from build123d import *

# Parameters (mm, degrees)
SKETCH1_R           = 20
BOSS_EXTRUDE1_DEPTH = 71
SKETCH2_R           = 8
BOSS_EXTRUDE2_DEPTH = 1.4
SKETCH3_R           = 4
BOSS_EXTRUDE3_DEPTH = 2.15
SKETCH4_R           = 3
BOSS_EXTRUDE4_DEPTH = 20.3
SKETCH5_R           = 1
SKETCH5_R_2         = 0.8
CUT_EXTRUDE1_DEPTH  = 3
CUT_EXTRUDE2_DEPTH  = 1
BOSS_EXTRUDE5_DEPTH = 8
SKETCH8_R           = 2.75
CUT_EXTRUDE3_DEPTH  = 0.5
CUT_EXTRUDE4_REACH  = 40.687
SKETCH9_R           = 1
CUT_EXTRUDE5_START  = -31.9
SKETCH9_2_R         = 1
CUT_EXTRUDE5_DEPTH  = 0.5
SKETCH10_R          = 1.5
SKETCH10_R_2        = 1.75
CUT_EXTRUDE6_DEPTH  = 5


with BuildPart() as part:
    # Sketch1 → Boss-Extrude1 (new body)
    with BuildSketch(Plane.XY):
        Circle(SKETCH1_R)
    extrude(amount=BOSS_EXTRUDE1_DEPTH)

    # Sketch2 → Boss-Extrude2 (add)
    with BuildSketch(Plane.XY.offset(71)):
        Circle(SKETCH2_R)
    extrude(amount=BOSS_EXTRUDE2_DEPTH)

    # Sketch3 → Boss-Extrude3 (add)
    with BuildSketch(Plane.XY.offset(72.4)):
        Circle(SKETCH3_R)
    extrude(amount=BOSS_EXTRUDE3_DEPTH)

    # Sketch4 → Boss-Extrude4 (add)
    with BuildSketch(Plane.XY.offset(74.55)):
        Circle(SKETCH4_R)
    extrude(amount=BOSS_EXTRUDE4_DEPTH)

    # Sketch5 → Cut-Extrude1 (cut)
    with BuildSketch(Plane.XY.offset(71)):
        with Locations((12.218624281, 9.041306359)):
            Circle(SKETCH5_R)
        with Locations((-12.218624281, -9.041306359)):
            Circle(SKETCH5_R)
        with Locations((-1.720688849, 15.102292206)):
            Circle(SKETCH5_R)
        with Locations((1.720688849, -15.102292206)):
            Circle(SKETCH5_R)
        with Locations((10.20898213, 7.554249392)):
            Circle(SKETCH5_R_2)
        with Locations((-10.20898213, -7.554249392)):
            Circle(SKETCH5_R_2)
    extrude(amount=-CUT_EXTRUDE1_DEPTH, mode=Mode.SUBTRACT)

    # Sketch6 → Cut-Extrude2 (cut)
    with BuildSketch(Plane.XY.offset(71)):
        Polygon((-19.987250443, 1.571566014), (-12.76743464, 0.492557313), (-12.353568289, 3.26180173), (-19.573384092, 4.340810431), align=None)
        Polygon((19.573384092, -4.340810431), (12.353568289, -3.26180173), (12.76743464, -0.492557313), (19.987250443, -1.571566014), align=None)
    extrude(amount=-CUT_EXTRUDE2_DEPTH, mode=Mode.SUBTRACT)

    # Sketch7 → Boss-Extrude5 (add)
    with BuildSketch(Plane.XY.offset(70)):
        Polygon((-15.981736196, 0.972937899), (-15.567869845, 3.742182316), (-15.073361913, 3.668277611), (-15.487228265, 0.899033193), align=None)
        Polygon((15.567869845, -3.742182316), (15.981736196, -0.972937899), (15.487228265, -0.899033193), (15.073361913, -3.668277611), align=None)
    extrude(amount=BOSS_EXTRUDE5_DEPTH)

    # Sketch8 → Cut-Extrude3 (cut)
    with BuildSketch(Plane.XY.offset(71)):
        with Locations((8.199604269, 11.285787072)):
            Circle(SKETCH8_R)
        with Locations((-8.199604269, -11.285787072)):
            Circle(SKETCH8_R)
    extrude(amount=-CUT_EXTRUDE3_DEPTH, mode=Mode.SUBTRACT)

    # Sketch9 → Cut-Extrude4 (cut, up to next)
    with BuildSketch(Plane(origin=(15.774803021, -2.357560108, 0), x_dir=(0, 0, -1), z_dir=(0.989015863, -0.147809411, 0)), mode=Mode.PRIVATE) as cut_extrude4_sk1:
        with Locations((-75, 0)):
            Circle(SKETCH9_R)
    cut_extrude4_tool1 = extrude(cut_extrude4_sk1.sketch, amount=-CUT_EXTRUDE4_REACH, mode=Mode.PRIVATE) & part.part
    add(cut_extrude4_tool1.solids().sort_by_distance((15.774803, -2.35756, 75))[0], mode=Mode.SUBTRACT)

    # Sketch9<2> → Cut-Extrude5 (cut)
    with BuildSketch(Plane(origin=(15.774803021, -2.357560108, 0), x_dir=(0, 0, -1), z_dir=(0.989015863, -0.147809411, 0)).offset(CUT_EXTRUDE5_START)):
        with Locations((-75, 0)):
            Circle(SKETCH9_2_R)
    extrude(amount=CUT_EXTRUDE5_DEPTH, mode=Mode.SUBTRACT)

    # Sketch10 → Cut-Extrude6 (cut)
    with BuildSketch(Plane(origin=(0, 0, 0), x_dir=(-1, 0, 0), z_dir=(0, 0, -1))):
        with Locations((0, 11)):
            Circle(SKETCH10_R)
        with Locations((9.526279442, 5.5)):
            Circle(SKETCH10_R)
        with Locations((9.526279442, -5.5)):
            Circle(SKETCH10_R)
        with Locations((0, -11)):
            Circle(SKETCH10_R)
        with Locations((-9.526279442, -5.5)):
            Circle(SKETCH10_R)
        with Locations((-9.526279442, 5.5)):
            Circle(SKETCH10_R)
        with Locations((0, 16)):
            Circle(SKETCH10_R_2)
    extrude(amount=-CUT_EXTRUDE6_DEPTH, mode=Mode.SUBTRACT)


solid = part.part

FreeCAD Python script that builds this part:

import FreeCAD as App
import Part
import Sketcher

V = App.Vector
Q = App.Units.Quantity

doc = App.newDocument("Part")
body = doc.addObject("PartDesign::Body", "Body")

# Sketch on XY plane
sketch1 = doc.addObject("Sketcher::SketchObject", "Sketch")
body.addObject(sketch1)
sketch1.AttachmentSupport = (doc.XY_Plane, [""])
sketch1.MapMode = "FlatFace"
sketch1.addGeometry(Part.Circle(V(0, 0, 0), V(0, 0, 1), 20), False)
sketch1.addConstraint(Sketcher.Constraint("Coincident", 0, 3, -1, 1))
sketch1.addConstraint(Sketcher.Constraint("Diameter", 0, Q("40 mm")))
pad1 = doc.addObject("PartDesign::Pad", "Pad")
body.addObject(pad1)
pad1.Profile = sketch1
pad1.Length = 71

# Sketch on XY plane
sketch2 = doc.addObject("Sketcher::SketchObject", "Sketch001")
body.addObject(sketch2)
sketch2.AttachmentSupport = (doc.XY_Plane, [""])
sketch2.MapMode = "FlatFace"
sketch2.AttachmentOffset = App.Placement(V(0, 0, 71), App.Rotation())
sketch2.addGeometry(Part.Circle(V(0, 0, 0), V(0, 0, 1), 8), False)
sketch2.addConstraint(Sketcher.Constraint("Coincident", 0, 3, -1, 1))
sketch2.addConstraint(Sketcher.Constraint("Diameter", 0, Q("16 mm")))
pad2 = doc.addObject("PartDesign::Pad", "Pad001")
body.addObject(pad2)
pad2.Profile = sketch2
pad2.Length = 1.4

# Sketch on XY plane
sketch3 = doc.addObject("Sketcher::SketchObject", "Sketch002")
body.addObject(sketch3)
sketch3.AttachmentSupport = (doc.XY_Plane, [""])
sketch3.MapMode = "FlatFace"
sketch3.AttachmentOffset = App.Placement(V(0, 0, 72.4), App.Rotation())
sketch3.addGeometry(Part.Circle(V(0, 0, 0), V(0, 0, 1), 4), False)
sketch3.addConstraint(Sketcher.Constraint("Coincident", 0, 3, -1, 1))
sketch3.addConstraint(Sketcher.Constraint("Diameter", 0, Q("8 mm")))
pad3 = doc.addObject("PartDesign::Pad", "Pad002")
body.addObject(pad3)
pad3.Profile = sketch3
pad3.Length = 2.15

# Sketch on XY plane
sketch4 = doc.addObject("Sketcher::SketchObject", "Sketch003")
body.addObject(sketch4)
sketch4.AttachmentSupport = (doc.XY_Plane, [""])
sketch4.MapMode = "FlatFace"
sketch4.AttachmentOffset = App.Placement(V(0, 0, 74.55), App.Rotation())
sketch4.addGeometry(Part.Circle(V(0, 0, 0), V(0, 0, 1), 3), False)
sketch4.addConstraint(Sketcher.Constraint("Coincident", 0, 3, -1, 1))
sketch4.addConstraint(Sketcher.Constraint("Diameter", 0, Q("6 mm")))
pad4 = doc.addObject("PartDesign::Pad", "Pad003")
body.addObject(pad4)
pad4.Profile = sketch4
pad4.Length = 20.3

# Sketch on XY plane
sketch5 = doc.addObject("Sketcher::SketchObject", "Sketch004")
body.addObject(sketch5)
sketch5.AttachmentSupport = (doc.XY_Plane, [""])
sketch5.MapMode = "FlatFace"
sketch5.AttachmentOffset = App.Placement(V(0, 0, 71), App.Rotation())
sketch5.addGeometry(Part.Circle(V(12.218624, 9.041306, 0), V(0, 0, 1), 1), False)
sketch5.addGeometry(Part.Circle(V(-12.218624, -9.041306, 0), V(0, 0, 1), 1), False)
sketch5.addGeometry(Part.Circle(V(-1.720689, 15.102292, 0), V(0, 0, 1), 1), False)
sketch5.addGeometry(Part.Circle(V(1.720689, -15.102292, 0), V(0, 0, 1), 1), False)
sketch5.addGeometry(Part.Circle(V(10.208982, 7.554249, 0), V(0, 0, 1), 0.8), False)
sketch5.addGeometry(Part.Circle(V(-10.208982, -7.554249, 0), V(0, 0, 1), 0.8), False)
sketch5.addConstraint(Sketcher.Constraint("Equal", 0, 1))
sketch5.addConstraint(Sketcher.Constraint("Equal", 1, 2))
sketch5.addConstraint(Sketcher.Constraint("Equal", 2, 3))
sketch5.addConstraint(Sketcher.Constraint("Equal", 4, 5))
sketch5.addConstraint(Sketcher.Constraint("Symmetric", 0, 3, 1, 3, -1, 1))
sketch5.addConstraint(Sketcher.Constraint("Symmetric", 2, 3, 3, 3, -1, 1))
sketch5.addConstraint(Sketcher.Constraint("Symmetric", 4, 3, 5, 3, -1, 1))
sketch5.addConstraint(Sketcher.Constraint("Diameter", 0, Q("2 mm")))
sketch5.addConstraint(Sketcher.Constraint("Diameter", 4, Q("1.6 mm")))
sketch5.addConstraint(Sketcher.Constraint("DistanceY", 1, 3, 2, 3, Q("24.143599 mm")))
sketch5.addConstraint(Sketcher.Constraint("DistanceY", 5, 3, 4, 3, Q("15.108499 mm")))
sketch5.addConstraint(Sketcher.Constraint("DistanceX", 2, 3, -1, 1, Q("1.720689 mm")))
sketch5.addConstraint(Sketcher.Constraint("DistanceX", 1, 3, 0, 3, Q("24.437249 mm")))
sketch5.addConstraint(Sketcher.Constraint("DistanceX", 2, 3, 4, 3, Q("11.929671 mm")))
sketch5.addConstraint(Sketcher.Constraint("DistanceY", 3, 3, 4, 3, Q("22.656542 mm")))
pocket1 = doc.addObject("PartDesign::Pocket", "Pocket")
body.addObject(pocket1)
pocket1.Profile = sketch5
pocket1.Length = 3

# Sketch on XY plane
sketch6 = doc.addObject("Sketcher::SketchObject", "Sketch005")
body.addObject(sketch6)
sketch6.AttachmentSupport = (doc.XY_Plane, [""])
sketch6.MapMode = "FlatFace"
sketch6.AttachmentOffset = App.Placement(V(0, 0, 71), App.Rotation())
sketch6.addGeometry(Part.LineSegment(V(-19.98725, 1.571566, 0), V(-12.767435, 0.492557, 0)), False)
sketch6.addGeometry(Part.LineSegment(V(-12.767435, 0.492557, 0), V(-12.353568, 3.261802, 0)), False)
sketch6.addGeometry(Part.LineSegment(V(-12.353568, 3.261802, 0), V(-19.573384, 4.34081, 0)), False)
sketch6.addGeometry(Part.LineSegment(V(-19.573384, 4.34081, 0), V(-19.98725, 1.571566, 0)), False)
sketch6.addGeometry(Part.LineSegment(V(12.353568, -3.261802, 0), V(19.573384, -4.34081, 0)), False)
sketch6.addGeometry(Part.LineSegment(V(19.573384, -4.34081, 0), V(19.98725, -1.571566, 0)), False)
sketch6.addGeometry(Part.LineSegment(V(19.98725, -1.571566, 0), V(12.767435, -0.492557, 0)), False)
sketch6.addGeometry(Part.LineSegment(V(12.767435, -0.492557, 0), V(12.353568, -3.261802, 0)), False)
sketch6.addConstraint(Sketcher.Constraint("Coincident", 0, 2, 1, 1))
sketch6.addConstraint(Sketcher.Constraint("Coincident", 1, 2, 2, 1))
sketch6.addConstraint(Sketcher.Constraint("Coincident", 2, 2, 3, 1))
sketch6.addConstraint(Sketcher.Constraint("Coincident", 3, 2, 0, 1))
sketch6.addConstraint(Sketcher.Constraint("Coincident", 4, 2, 5, 1))
sketch6.addConstraint(Sketcher.Constraint("Coincident", 5, 2, 6, 1))
sketch6.addConstraint(Sketcher.Constraint("Coincident", 6, 2, 7, 1))
sketch6.addConstraint(Sketcher.Constraint("Coincident", 7, 2, 4, 1))
sketch6.addConstraint(Sketcher.Constraint("Symmetric", 2, 2, 4, 2, -1, 1))
sketch6.addConstraint(Sketcher.Constraint("Symmetric", 3, 2, 5, 2, -1, 1))
sketch6.addConstraint(Sketcher.Constraint("Symmetric", 0, 2, 6, 2, -1, 1))
sketch6.addConstraint(Sketcher.Constraint("Symmetric", 1, 2, 7, 2, -1, 1))
sketch6.addConstraint(Sketcher.Constraint("Perpendicular", 0, 1))
sketch6.addConstraint(Sketcher.Constraint("Perpendicular", 1, 2))
sketch6.addConstraint(Sketcher.Constraint("Perpendicular", 2, 3))
sketch6.addConstraint(Sketcher.Constraint("Angle", 0, Q("-8.5 deg")))
sketch6.addConstraint(Sketcher.Constraint("Distance", 0, Q("7.3 mm")))
sketch6.addConstraint(Sketcher.Constraint("Distance", 1, Q("2.8 mm")))
sketch6.addConstraint(Sketcher.Constraint("DistanceY", -1, 1, 1, 2, Q("3.261802 mm")))
sketch6.addConstraint(Sketcher.Constraint("DistanceX", 3, 2, 5, 2, Q("39.974501 mm")))
pocket2 = doc.addObject("PartDesign::Pocket", "Pocket001")
body.addObject(pocket2)
pocket2.Profile = sketch6
pocket2.Length = 1

# Sketch on XY plane
sketch7 = doc.addObject("Sketcher::SketchObject", "Sketch006")
body.addObject(sketch7)
sketch7.AttachmentSupport = (doc.XY_Plane, [""])
sketch7.MapMode = "FlatFace"
sketch7.AttachmentOffset = App.Placement(V(0, 0, 70), App.Rotation())
sketch7.addGeometry(Part.LineSegment(V(-15.56787, 3.742182, 0), V(-15.981736, 0.972938, 0)), False)
sketch7.addGeometry(Part.LineSegment(V(-15.981736, 0.972938, 0), V(-15.487228, 0.899033, 0)), False)
sketch7.addGeometry(Part.LineSegment(V(-15.487228, 0.899033, 0), V(-15.073362, 3.668278, 0)), False)
sketch7.addGeometry(Part.LineSegment(V(-15.073362, 3.668278, 0), V(-15.56787, 3.742182, 0)), False)
sketch7.addGeometry(Part.LineSegment(V(15.56787, -3.742182, 0), V(15.981736, -0.972938, 0)), False)
sketch7.addGeometry(Part.LineSegment(V(15.981736, -0.972938, 0), V(15.487228, -0.899033, 0)), False)
sketch7.addGeometry(Part.LineSegment(V(15.487228, -0.899033, 0), V(15.073362, -3.668278, 0)), False)
sketch7.addGeometry(Part.LineSegment(V(15.073362, -3.668278, 0), V(15.56787, -3.742182, 0)), False)
sketch7.addConstraint(Sketcher.Constraint("Coincident", 0, 2, 1, 1))
sketch7.addConstraint(Sketcher.Constraint("Coincident", 1, 2, 2, 1))
sketch7.addConstraint(Sketcher.Constraint("Coincident", 2, 2, 3, 1))
sketch7.addConstraint(Sketcher.Constraint("Coincident", 3, 2, 0, 1))
sketch7.addConstraint(Sketcher.Constraint("Coincident", 4, 2, 5, 1))
sketch7.addConstraint(Sketcher.Constraint("Coincident", 5, 2, 6, 1))
sketch7.addConstraint(Sketcher.Constraint("Coincident", 6, 2, 7, 1))
sketch7.addConstraint(Sketcher.Constraint("Coincident", 7, 2, 4, 1))
sketch7.addConstraint(Sketcher.Constraint("Symmetric", 0, 2, 4, 2, -1, 1))
sketch7.addConstraint(Sketcher.Constraint("Symmetric", 1, 2, 5, 2, -1, 1))
sketch7.addConstraint(Sketcher.Constraint("Symmetric", 2, 2, 6, 2, -1, 1))
sketch7.addConstraint(Sketcher.Constraint("Symmetric", 3, 2, 7, 2, -1, 1))
sketch7.addConstraint(Sketcher.Constraint("Perpendicular", 0, 1))
sketch7.addConstraint(Sketcher.Constraint("Perpendicular", 1, 2))
sketch7.addConstraint(Sketcher.Constraint("Perpendicular", 2, 3))
sketch7.addConstraint(Sketcher.Constraint("Angle", 0, Q("-98.5 deg")))
sketch7.addConstraint(Sketcher.Constraint("Distance", 0, Q("2.8 mm")))
sketch7.addConstraint(Sketcher.Constraint("Distance", 1, Q("0.5 mm")))
sketch7.addConstraint(Sketcher.Constraint("DistanceX", 2, 2, 4, 2, Q("31.055098 mm")))
sketch7.addConstraint(Sketcher.Constraint("DistanceY", 4, 2, 1, 2, Q("1.871971 mm")))
pad5 = doc.addObject("PartDesign::Pad", "Pad004")
body.addObject(pad5)
pad5.Profile = sketch7
pad5.Length = 8

# Sketch on XY plane
sketch8 = doc.addObject("Sketcher::SketchObject", "Sketch007")
body.addObject(sketch8)
sketch8.AttachmentSupport = (doc.XY_Plane, [""])
sketch8.MapMode = "FlatFace"
sketch8.AttachmentOffset = App.Placement(V(0, 0, 71), App.Rotation())
sketch8.addGeometry(Part.Circle(V(8.199604, 11.285787, 0), V(0, 0, 1), 2.75), False)
sketch8.addGeometry(Part.Circle(V(-8.199604, -11.285787, 0), V(0, 0, 1), 2.75), False)
sketch8.addConstraint(Sketcher.Constraint("Equal", 0, 1))
sketch8.addConstraint(Sketcher.Constraint("Symmetric", 0, 3, 1, 3, -1, 1))
sketch8.addConstraint(Sketcher.Constraint("Diameter", 0, Q("5.5 mm")))
sketch8.addConstraint(Sketcher.Constraint("DistanceX", 1, 3, 0, 3, Q("16.399209 mm")))
sketch8.addConstraint(Sketcher.Constraint("DistanceY", -1, 1, 0, 3, Q("11.285787 mm")))
pocket3 = doc.addObject("PartDesign::Pocket", "Pocket002")
body.addObject(pocket3)
pocket3.Profile = sketch8
pocket3.Length = 0.5

# Sketch on an angled plane
sketch9 = doc.addObject("Sketcher::SketchObject", "Sketch008")
body.addObject(sketch9)
sketch9.Placement = App.Placement(V(15.774803, -2.35756, 0), App.Rotation(V(0, 0, -1), V(0.147809411, 0.989015863, 0), V(0.989015863, -0.147809411, 0), "ZXY"))
sketch9.addGeometry(Part.Circle(V(-75, 0, 0), V(0, 0, 1), 1), False)
sketch9.addConstraint(Sketcher.Constraint("PointOnObject", 0, 3, -1))
sketch9.addConstraint(Sketcher.Constraint("Diameter", 0, Q("2 mm")))
sketch9.addConstraint(Sketcher.Constraint("DistanceX", 0, 3, -1, 1, Q("75 mm")))
pocket4 = doc.addObject("PartDesign::Pocket", "Pocket003")
body.addObject(pocket4)
pocket4.Profile = sketch9
pocket4.Type = "UpToFirst"

# Sketch on an angled plane
sketch10 = doc.addObject("Sketcher::SketchObject", "Sketch009")
body.addObject(sketch10)
sketch10.Placement = App.Placement(V(-15.774803, 2.35756, 0), App.Rotation(V(0, 0, -1), V(0.147809411, 0.989015863, 0), V(0.989015863, -0.147809411, 0), "ZXY"))
sketch10.addGeometry(Part.Circle(V(-75, 0, 0), V(0, 0, 1), 1), False)
sketch10.addConstraint(Sketcher.Constraint("PointOnObject", 0, 3, -1))
sketch10.addConstraint(Sketcher.Constraint("Diameter", 0, Q("2 mm")))
sketch10.addConstraint(Sketcher.Constraint("DistanceX", 0, 3, -1, 1, Q("75 mm")))
pocket5 = doc.addObject("PartDesign::Pocket", "Pocket004")
body.addObject(pocket5)
pocket5.Profile = sketch10
pocket5.Length = 0.5
pocket5.Reversed = True

# Sketch on XY plane
sketch11 = doc.addObject("Sketcher::SketchObject", "Sketch010")
body.addObject(sketch11)
sketch11.AttachmentSupport = (doc.XY_Plane, [""])
sketch11.MapMode = "FlatFace"
sketch11.addGeometry(Part.Circle(V(0, 11, 0), V(0, 0, 1), 1.5), False)
sketch11.addGeometry(Part.Circle(V(-9.526279, 5.5, 0), V(0, 0, 1), 1.5), False)
sketch11.addGeometry(Part.Circle(V(-9.526279, -5.5, 0), V(0, 0, 1), 1.5), False)
sketch11.addGeometry(Part.Circle(V(0, -11, 0), V(0, 0, 1), 1.5), False)
sketch11.addGeometry(Part.Circle(V(9.526279, -5.5, 0), V(0, 0, 1), 1.5), False)
sketch11.addGeometry(Part.Circle(V(9.526279, 5.5, 0), V(0, 0, 1), 1.5), False)
sketch11.addGeometry(Part.Circle(V(0, 16, 0), V(0, 0, 1), 1.75), False)
sketch11.addConstraint(Sketcher.Constraint("Equal", 0, 1))
sketch11.addConstraint(Sketcher.Constraint("Equal", 1, 2))
sketch11.addConstraint(Sketcher.Constraint("Equal", 2, 3))
sketch11.addConstraint(Sketcher.Constraint("Equal", 3, 4))
sketch11.addConstraint(Sketcher.Constraint("Equal", 4, 5))
sketch11.addConstraint(Sketcher.Constraint("Symmetric", 0, 3, 3, 3, -1, 1))
sketch11.addConstraint(Sketcher.Constraint("Symmetric", 1, 3, 4, 3, -1, 1))
sketch11.addConstraint(Sketcher.Constraint("Symmetric", 2, 3, 5, 3, -1, 1))
sketch11.addConstraint(Sketcher.Constraint("Symmetric", 2, 3, 4, 3, -2))
sketch11.addConstraint(Sketcher.Constraint("PointOnObject", 0, 3, -2))
sketch11.addConstraint(Sketcher.Constraint("PointOnObject", 6, 3, -2))
sketch11.addConstraint(Sketcher.Constraint("Diameter", 0, Q("3 mm")))
sketch11.addConstraint(Sketcher.Constraint("Diameter", 6, Q("3.5 mm")))
sketch11.addConstraint(Sketcher.Constraint("DistanceY", -1, 1, 0, 3, Q("11 mm")))
sketch11.addConstraint(Sketcher.Constraint("DistanceY", -1, 1, 6, 3, Q("16 mm")))
sketch11.addConstraint(Sketcher.Constraint("DistanceY", 2, 3, 1, 3, Q("11 mm")))
sketch11.addConstraint(Sketcher.Constraint("DistanceX", 1, 3, -1, 1, Q("9.526279 mm")))
pocket6 = doc.addObject("PartDesign::Pocket", "Pocket005")
body.addObject(pocket6)
pocket6.Profile = sketch11
pocket6.Length = 5
pocket6.Reversed = True

doc.recompute()
